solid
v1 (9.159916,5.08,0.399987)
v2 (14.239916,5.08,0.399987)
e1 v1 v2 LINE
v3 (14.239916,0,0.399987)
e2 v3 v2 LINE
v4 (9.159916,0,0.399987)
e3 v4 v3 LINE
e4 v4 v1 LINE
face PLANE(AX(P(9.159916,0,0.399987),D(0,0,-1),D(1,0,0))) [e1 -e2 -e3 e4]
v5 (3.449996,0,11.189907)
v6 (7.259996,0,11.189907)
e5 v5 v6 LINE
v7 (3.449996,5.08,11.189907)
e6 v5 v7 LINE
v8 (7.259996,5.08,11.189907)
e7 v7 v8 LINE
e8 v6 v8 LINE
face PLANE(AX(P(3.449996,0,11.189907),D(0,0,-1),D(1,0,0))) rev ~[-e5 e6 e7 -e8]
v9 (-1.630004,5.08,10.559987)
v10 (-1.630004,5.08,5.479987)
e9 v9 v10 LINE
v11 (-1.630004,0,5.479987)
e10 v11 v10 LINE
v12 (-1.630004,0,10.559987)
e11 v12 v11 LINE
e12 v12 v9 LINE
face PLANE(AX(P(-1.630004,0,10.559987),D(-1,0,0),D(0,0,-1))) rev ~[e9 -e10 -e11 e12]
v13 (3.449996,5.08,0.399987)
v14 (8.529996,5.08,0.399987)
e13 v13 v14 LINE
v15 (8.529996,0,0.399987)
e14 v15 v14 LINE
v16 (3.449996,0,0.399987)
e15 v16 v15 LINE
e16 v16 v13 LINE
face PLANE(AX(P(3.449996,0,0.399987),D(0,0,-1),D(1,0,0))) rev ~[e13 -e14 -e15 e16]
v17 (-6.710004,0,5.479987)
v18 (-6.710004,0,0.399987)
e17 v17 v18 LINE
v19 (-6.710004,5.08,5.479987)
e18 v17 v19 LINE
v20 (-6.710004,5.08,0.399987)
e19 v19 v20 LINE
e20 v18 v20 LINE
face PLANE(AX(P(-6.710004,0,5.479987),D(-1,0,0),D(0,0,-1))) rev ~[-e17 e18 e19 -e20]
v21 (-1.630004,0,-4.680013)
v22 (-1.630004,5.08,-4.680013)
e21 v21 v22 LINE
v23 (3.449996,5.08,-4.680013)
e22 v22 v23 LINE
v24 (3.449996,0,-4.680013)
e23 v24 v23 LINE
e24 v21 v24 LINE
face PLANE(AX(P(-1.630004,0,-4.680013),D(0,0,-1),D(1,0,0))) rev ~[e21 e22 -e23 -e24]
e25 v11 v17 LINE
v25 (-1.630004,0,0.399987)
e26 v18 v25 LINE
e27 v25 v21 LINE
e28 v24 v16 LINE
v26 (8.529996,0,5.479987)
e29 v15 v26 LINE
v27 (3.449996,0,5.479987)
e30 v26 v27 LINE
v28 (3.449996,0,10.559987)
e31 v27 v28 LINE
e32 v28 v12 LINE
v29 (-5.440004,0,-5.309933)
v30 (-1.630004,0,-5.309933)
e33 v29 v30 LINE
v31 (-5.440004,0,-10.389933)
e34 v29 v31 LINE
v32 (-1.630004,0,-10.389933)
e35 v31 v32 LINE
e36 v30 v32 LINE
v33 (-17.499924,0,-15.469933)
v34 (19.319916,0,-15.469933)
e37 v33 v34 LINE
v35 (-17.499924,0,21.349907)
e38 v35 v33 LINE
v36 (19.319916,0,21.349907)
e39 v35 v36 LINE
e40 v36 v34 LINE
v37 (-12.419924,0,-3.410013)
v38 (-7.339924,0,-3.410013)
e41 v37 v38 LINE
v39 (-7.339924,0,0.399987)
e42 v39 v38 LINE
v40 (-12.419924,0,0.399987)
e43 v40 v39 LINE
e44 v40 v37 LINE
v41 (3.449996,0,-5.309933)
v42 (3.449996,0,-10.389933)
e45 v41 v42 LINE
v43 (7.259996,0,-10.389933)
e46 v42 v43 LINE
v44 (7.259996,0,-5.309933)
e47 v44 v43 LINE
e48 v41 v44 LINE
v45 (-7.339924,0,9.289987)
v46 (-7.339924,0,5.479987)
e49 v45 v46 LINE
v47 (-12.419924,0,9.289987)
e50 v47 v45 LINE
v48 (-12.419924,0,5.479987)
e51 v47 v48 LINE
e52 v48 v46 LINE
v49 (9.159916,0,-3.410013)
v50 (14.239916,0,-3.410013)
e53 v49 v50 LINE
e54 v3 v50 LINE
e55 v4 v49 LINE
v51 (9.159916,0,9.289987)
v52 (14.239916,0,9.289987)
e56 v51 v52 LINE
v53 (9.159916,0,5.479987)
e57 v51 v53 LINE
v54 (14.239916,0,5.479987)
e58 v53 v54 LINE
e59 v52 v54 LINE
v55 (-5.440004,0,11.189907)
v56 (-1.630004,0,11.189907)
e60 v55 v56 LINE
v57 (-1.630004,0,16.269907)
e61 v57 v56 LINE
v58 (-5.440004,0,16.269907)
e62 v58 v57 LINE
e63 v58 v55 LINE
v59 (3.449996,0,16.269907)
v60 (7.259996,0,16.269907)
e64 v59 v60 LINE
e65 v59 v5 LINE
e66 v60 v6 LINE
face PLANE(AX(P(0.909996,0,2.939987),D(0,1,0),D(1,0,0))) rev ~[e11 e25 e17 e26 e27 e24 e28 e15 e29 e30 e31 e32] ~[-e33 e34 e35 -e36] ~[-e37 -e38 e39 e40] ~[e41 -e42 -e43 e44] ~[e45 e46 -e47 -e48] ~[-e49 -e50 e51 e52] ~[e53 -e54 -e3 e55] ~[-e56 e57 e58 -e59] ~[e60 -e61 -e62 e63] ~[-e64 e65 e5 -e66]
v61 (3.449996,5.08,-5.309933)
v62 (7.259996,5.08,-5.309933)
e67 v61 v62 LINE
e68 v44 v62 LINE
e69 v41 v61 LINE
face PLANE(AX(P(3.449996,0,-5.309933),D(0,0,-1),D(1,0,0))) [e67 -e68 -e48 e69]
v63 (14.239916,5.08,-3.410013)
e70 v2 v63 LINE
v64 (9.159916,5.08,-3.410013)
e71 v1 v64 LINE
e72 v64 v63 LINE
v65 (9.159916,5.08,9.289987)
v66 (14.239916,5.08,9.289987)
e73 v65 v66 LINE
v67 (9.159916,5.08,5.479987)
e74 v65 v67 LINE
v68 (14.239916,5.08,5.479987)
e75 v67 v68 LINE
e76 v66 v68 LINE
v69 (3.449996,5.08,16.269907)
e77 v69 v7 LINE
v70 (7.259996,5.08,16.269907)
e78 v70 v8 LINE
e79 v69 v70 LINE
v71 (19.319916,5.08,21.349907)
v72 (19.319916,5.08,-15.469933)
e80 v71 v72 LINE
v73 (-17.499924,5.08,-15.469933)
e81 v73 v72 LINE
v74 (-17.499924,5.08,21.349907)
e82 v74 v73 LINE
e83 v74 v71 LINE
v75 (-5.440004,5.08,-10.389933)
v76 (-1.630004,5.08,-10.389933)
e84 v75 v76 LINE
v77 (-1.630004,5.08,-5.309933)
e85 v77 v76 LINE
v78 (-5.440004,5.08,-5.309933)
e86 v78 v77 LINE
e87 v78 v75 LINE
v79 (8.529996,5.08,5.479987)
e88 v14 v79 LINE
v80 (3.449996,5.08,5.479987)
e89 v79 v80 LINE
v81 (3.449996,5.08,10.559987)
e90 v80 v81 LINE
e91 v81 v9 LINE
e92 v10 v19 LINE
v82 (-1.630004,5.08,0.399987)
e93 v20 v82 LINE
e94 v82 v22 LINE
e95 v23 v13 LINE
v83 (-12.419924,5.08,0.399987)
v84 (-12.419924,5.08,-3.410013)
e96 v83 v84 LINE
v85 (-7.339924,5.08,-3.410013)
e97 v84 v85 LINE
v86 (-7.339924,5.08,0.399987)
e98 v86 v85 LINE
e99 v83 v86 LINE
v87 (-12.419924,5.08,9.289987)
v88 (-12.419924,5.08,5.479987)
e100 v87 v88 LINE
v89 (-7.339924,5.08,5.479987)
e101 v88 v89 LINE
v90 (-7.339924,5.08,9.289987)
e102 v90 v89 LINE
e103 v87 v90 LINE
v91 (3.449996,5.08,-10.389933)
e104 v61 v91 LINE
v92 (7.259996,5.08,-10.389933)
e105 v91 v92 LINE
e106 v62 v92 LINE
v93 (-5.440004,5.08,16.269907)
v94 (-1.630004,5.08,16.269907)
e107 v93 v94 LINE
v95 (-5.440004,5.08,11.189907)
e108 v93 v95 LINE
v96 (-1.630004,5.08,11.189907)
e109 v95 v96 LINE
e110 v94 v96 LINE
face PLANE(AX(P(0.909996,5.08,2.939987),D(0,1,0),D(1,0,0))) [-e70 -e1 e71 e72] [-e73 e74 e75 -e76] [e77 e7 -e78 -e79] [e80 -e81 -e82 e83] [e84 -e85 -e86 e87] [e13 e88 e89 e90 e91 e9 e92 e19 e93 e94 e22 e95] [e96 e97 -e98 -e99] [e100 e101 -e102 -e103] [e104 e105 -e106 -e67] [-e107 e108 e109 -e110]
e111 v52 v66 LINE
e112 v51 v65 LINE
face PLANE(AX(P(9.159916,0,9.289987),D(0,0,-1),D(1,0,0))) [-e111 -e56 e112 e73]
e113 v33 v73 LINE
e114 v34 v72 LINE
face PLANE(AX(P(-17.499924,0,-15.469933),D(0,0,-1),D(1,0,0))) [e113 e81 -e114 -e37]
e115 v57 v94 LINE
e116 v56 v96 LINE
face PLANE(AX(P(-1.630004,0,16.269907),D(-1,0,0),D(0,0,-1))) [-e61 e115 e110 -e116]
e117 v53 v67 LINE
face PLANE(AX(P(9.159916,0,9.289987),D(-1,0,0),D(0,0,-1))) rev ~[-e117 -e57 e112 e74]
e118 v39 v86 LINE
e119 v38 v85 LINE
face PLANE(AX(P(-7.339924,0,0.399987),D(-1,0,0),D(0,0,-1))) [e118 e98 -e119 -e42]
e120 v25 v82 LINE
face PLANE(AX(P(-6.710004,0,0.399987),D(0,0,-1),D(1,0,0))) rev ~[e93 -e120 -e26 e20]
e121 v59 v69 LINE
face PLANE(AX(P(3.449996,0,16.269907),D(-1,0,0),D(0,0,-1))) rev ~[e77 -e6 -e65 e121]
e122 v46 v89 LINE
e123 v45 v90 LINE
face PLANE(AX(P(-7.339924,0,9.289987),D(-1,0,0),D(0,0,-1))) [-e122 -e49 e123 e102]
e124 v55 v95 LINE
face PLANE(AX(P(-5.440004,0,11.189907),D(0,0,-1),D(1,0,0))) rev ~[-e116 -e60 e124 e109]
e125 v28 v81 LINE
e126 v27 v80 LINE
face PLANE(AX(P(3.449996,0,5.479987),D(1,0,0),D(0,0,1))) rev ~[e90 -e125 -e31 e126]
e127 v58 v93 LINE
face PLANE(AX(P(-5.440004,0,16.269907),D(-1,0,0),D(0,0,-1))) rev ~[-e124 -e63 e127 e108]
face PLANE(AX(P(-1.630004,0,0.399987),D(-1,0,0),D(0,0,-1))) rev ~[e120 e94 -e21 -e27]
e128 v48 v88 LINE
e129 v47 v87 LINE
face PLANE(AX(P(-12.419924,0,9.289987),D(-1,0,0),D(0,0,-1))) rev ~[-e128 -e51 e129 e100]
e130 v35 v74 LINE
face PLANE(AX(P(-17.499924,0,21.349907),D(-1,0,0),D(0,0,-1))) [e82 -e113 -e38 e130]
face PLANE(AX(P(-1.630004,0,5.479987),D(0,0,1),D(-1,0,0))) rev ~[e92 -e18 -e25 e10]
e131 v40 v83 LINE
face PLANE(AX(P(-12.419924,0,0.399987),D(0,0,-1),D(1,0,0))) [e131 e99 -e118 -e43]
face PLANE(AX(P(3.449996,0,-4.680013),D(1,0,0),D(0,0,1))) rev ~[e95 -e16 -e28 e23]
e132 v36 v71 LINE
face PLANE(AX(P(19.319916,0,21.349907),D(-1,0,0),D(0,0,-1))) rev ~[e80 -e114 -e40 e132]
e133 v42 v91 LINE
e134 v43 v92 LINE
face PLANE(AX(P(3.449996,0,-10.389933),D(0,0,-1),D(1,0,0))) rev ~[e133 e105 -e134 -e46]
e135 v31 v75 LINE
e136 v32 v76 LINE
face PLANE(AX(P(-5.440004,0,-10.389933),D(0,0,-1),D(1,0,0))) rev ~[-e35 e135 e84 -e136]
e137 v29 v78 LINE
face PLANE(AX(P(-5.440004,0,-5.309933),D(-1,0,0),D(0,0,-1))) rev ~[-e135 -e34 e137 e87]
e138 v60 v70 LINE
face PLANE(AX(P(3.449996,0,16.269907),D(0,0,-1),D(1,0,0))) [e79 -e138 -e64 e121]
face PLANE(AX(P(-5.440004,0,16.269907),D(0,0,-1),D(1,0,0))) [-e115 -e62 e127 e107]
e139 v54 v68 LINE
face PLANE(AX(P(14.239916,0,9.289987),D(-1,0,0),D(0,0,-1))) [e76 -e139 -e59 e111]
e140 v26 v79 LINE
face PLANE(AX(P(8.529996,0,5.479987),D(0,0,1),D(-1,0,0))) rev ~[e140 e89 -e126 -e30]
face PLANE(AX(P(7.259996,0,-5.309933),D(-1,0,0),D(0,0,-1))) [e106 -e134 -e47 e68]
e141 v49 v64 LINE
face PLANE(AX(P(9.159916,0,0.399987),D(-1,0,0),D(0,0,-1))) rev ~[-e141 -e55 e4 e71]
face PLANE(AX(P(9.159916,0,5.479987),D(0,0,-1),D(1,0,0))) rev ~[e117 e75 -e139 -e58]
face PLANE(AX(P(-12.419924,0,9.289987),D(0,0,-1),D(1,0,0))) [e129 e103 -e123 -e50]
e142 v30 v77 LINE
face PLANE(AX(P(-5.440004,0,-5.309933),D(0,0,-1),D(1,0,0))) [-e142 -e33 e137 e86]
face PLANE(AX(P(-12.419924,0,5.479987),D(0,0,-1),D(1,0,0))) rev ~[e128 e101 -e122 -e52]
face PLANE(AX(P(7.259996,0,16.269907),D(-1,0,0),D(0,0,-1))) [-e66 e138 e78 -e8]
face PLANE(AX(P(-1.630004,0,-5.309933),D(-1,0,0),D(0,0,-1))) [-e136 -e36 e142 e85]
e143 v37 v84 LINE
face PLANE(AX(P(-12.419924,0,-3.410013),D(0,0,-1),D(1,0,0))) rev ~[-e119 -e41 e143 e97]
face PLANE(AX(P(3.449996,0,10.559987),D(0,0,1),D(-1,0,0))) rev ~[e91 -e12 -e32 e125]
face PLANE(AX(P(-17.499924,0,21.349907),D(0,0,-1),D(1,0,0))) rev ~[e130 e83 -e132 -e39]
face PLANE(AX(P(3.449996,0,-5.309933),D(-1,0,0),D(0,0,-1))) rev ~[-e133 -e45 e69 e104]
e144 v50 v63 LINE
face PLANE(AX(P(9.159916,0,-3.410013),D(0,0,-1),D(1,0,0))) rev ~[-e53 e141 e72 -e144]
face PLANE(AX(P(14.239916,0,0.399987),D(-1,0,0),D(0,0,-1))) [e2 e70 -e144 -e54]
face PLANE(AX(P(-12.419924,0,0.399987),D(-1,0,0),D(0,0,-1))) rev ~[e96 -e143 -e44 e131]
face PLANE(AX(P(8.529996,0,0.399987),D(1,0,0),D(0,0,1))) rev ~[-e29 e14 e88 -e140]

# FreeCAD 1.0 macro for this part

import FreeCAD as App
import Part
import Sketcher

V = App.Vector
Q = App.Units.Quantity


def add_polygon(sketch, points):
    """Adds a closed chain of lines whose ends are joined by coincident constraints."""
    first, n = sketch.GeometryCount, len(points)
    for a, b in zip(points, points[1:] + points[:1]):
        sketch.addGeometry(Part.LineSegment(App.Vector(*a, 0), App.Vector(*b, 0)), False)
    for i in range(n):
        sketch.addConstraint(Sketcher.Constraint("Coincident", first + i, 2, first + (i + 1) % n, 1))

doc = App.newDocument("Part")
body = doc.addObject("PartDesign::Body", "Body")

# Sketch on XZ plane
sketch1 = body.newObject("Sketcher::SketchObject", "Sketch")
sketch1.AttachmentSupport = (doc.getObject("XZ_Plane"), [""])
sketch1.MapMode = "FlatFace"
add_polygon(sketch1, [(-17.5, -15.5), (-17.5, 21.3), (19.3, 21.3), (19.3, -15.5)])  # lines 0-3
add_polygon(sketch1, [(-1.6, 16.3), (-5.4, 16.3), (-5.4, 11.2), (-1.6, 11.2)])  # lines 4-7
add_polygon(sketch1, [(-7.3, 9.3), (-12.4, 9.3), (-12.4, 5.5), (-7.3, 5.5)])  # lines 8-11
add_polygon(sketch1, [(7.3, 16.3), (3.4, 16.3), (3.4, 11.2), (7.3, 11.2)])  # lines 12-15
add_polygon(sketch1, [(14.2, 9.3), (9.2, 9.3), (9.2, 5.5), (14.2, 5.5)])  # lines 16-19
add_polygon(sketch1, [(-7.3, 0.4), (-12.4, 0.4), (-12.4, -3.4), (-7.3, -3.4)])  # lines 20-23
add_polygon(sketch1, [(-1.6, -5.3), (-5.4, -5.3), (-5.4, -10.4), (-1.6, -10.4)])  # lines 24-27
add_polygon(sketch1, [(-1.6, -4.7), (3.4, -4.7), (3.4, 0.4), (8.5, 0.4), (8.5, 5.5), (3.4, 5.5), (3.4, 10.6), (-1.6, 10.6), (-1.6, 5.5), (-6.7, 5.5), (-6.7, 0.4), (-1.6, 0.4)])  # lines 28-39
add_polygon(sketch1, [(14.2, 0.4), (9.2, 0.4), (9.2, -3.4), (14.2, -3.4)])  # lines 40-43
add_polygon(sketch1, [(7.3, -5.3), (3.4, -5.3), (3.4, -10.4), (7.3, -10.4)])  # lines 44-47
sketch1.addConstraint([
    Sketcher.Constraint("Vertical", 0),
    Sketcher.Constraint("Horizontal", 1),
    Sketcher.Constraint("Vertical", 2),
    Sketcher.Constraint("Horizontal", 3),
    Sketcher.Constraint("Horizontal", 4),
    Sketcher.Constraint("Vertical", 5),
    Sketcher.Constraint("Horizontal", 6),
    Sketcher.Constraint("Vertical", 7),
    Sketcher.Constraint("Horizontal", 8),
    Sketcher.Constraint("Vertical", 9),
    Sketcher.Constraint("Horizontal", 10),
    Sketcher.Constraint("Vertical", 11),
    Sketcher.Constraint("Horizontal", 12),
    Sketcher.Constraint("Vertical", 13),
    Sketcher.Constraint("Horizontal", 14),
    Sketcher.Constraint("Vertical", 15),
    Sketcher.Constraint("Horizontal", 16),
    Sketcher.Constraint("Vertical", 17),
    Sketcher.Constraint("Horizontal", 18),
    Sketcher.Constraint("Vertical", 19),
    Sketcher.Constraint("Horizontal", 20),
    Sketcher.Constraint("Vertical", 21),
    Sketcher.Constraint("Horizontal", 22),
    Sketcher.Constraint("Vertical", 23),
    Sketcher.Constraint("Horizontal", 24),
    Sketcher.Constraint("Vertical", 25),
    Sketcher.Constraint("Horizontal", 26),
    Sketcher.Constraint("Vertical", 27),
    Sketcher.Constraint("Horizontal", 28),
    Sketcher.Constraint("Vertical", 29),
    Sketcher.Constraint("Horizontal", 30),
    Sketcher.Constraint("Vertical", 31),
    Sketcher.Constraint("Horizontal", 32),
    Sketcher.Constraint("Vertical", 33),
    Sketcher.Constraint("Horizontal", 34),
    Sketcher.Constraint("Vertical", 35),
    Sketcher.Constraint("Horizontal", 36),
    Sketcher.Constraint("Vertical", 37),
    Sketcher.Constraint("Horizontal", 38),
    Sketcher.Constraint("Vertical", 39),
    Sketcher.Constraint("Horizontal", 40),
    Sketcher.Constraint("Vertical", 41),
    Sketcher.Constraint("Horizontal", 42),
    Sketcher.Constraint("Vertical", 43),
    Sketcher.Constraint("Horizontal", 44),
    Sketcher.Constraint("Vertical", 45),
    Sketcher.Constraint("Horizontal", 46),
    Sketcher.Constraint("Vertical", 47),
    Sketcher.Constraint("Horizontal", 7, 2, 12, 2),
    Sketcher.Constraint("Horizontal", 6, 2, 13, 2),
    Sketcher.Constraint("Horizontal", 11, 2, 16, 2),
    Sketcher.Constraint("Horizontal", 10, 2, 17, 2),
    Sketcher.Constraint("Horizontal", 23, 2, 29, 2),
    Sketcher.Constraint("Horizontal", 18, 2, 31, 2),
    Sketcher.Constraint("Horizontal", 32, 2, 35, 2),
    Sketcher.Constraint("Horizontal", 30, 2, 37, 2),
    Sketcher.Constraint("Horizontal", 38, 2, 40, 2),
    Sketcher.Constraint("Horizontal", 22, 2, 41, 2),
    Sketcher.Constraint("Horizontal", 27, 2, 44, 2),
    Sketcher.Constraint("Horizontal", 26, 2, 45, 2),
    Sketcher.Constraint("Vertical", 9, 2, 20, 2),
    Sketcher.Constraint("Vertical", 11, 2, 22, 2),
    Sketcher.Constraint("Vertical", 5, 2, 24, 2),
    Sketcher.Constraint("Vertical", 7, 2, 26, 2),
    Sketcher.Constraint("Vertical", 13, 2, 28, 2),
    Sketcher.Constraint("Vertical", 29, 2, 32, 2),
    Sketcher.Constraint("Vertical", 27, 2, 34, 2),
    Sketcher.Constraint("Vertical", 35, 2, 38, 2),
    Sketcher.Constraint("Vertical", 17, 2, 40, 2),
    Sketcher.Constraint("Vertical", 19, 2, 42, 2),
    Sketcher.Constraint("Vertical", 33, 2, 44, 2),
    Sketcher.Constraint("Vertical", 15, 2, 46, 2),
    Sketcher.Constraint("Equal", 6, 12),
    Sketcher.Constraint("Equal", 10, 16),
    Sketcher.Constraint("Equal", 22, 28),
    Sketcher.Constraint("Equal", 28, 30),
    Sketcher.Constraint("Equal", 34, 36),
    Sketcher.Constraint("Equal", 3, 0),
    Sketcher.Constraint("Equal", 42, 5),
    Sketcher.Constraint("Equal", 46, 9),
    Sketcher.Constraint("Equal", 19, 21),
    Sketcher.Constraint("Equal", 15, 25),
    Sketcher.Constraint("Equal", 27, 29),
    Sketcher.Constraint("Equal", 29, 31),
    Sketcher.Constraint("Equal", 31, 33),
    Sketcher.Constraint("DistanceX", 8, 2, 8, 1, Q("0.2 in")),
    Sketcher.Constraint("DistanceX", 4, 2, 4, 1, Q("0.15 in")),
    Sketcher.Constraint("DistanceY", 4, 2, 0, 2, Q("0.2 in")),
    Sketcher.Constraint("DistanceX", 0, 2, 8, 2, Q("0.2 in")),
    Sketcher.Constraint("DistanceX", 1, 1, 1, 2, Q("1.4496 in")),
    Sketcher.Constraint("DistanceX", 0, 2, 4, 2, Q("0.4748 in")),
    Sketcher.Constraint("DistanceY", 8, 2, 5, 2, Q("0.0748 in")),
    Sketcher.Constraint("DistanceX", 14, 2, 16, 2, Q("0.0748 in")),
    Sketcher.Constraint("DistanceY", 24, 2, 22, 2, Q("0.0748 in")),
    Sketcher.Constraint("DistanceX", 0, 2, -1, 1, 17.499924),
    Sketcher.Constraint("DistanceY", -1, 1, 0, 2, 21.349907),
])
pad1 = body.newObject("PartDesign::Pad", "Pad")
pad1.Profile = sketch1
pad1.Length = Q("0.2 in")
pad1.Reversed = True

doc.recompute()
